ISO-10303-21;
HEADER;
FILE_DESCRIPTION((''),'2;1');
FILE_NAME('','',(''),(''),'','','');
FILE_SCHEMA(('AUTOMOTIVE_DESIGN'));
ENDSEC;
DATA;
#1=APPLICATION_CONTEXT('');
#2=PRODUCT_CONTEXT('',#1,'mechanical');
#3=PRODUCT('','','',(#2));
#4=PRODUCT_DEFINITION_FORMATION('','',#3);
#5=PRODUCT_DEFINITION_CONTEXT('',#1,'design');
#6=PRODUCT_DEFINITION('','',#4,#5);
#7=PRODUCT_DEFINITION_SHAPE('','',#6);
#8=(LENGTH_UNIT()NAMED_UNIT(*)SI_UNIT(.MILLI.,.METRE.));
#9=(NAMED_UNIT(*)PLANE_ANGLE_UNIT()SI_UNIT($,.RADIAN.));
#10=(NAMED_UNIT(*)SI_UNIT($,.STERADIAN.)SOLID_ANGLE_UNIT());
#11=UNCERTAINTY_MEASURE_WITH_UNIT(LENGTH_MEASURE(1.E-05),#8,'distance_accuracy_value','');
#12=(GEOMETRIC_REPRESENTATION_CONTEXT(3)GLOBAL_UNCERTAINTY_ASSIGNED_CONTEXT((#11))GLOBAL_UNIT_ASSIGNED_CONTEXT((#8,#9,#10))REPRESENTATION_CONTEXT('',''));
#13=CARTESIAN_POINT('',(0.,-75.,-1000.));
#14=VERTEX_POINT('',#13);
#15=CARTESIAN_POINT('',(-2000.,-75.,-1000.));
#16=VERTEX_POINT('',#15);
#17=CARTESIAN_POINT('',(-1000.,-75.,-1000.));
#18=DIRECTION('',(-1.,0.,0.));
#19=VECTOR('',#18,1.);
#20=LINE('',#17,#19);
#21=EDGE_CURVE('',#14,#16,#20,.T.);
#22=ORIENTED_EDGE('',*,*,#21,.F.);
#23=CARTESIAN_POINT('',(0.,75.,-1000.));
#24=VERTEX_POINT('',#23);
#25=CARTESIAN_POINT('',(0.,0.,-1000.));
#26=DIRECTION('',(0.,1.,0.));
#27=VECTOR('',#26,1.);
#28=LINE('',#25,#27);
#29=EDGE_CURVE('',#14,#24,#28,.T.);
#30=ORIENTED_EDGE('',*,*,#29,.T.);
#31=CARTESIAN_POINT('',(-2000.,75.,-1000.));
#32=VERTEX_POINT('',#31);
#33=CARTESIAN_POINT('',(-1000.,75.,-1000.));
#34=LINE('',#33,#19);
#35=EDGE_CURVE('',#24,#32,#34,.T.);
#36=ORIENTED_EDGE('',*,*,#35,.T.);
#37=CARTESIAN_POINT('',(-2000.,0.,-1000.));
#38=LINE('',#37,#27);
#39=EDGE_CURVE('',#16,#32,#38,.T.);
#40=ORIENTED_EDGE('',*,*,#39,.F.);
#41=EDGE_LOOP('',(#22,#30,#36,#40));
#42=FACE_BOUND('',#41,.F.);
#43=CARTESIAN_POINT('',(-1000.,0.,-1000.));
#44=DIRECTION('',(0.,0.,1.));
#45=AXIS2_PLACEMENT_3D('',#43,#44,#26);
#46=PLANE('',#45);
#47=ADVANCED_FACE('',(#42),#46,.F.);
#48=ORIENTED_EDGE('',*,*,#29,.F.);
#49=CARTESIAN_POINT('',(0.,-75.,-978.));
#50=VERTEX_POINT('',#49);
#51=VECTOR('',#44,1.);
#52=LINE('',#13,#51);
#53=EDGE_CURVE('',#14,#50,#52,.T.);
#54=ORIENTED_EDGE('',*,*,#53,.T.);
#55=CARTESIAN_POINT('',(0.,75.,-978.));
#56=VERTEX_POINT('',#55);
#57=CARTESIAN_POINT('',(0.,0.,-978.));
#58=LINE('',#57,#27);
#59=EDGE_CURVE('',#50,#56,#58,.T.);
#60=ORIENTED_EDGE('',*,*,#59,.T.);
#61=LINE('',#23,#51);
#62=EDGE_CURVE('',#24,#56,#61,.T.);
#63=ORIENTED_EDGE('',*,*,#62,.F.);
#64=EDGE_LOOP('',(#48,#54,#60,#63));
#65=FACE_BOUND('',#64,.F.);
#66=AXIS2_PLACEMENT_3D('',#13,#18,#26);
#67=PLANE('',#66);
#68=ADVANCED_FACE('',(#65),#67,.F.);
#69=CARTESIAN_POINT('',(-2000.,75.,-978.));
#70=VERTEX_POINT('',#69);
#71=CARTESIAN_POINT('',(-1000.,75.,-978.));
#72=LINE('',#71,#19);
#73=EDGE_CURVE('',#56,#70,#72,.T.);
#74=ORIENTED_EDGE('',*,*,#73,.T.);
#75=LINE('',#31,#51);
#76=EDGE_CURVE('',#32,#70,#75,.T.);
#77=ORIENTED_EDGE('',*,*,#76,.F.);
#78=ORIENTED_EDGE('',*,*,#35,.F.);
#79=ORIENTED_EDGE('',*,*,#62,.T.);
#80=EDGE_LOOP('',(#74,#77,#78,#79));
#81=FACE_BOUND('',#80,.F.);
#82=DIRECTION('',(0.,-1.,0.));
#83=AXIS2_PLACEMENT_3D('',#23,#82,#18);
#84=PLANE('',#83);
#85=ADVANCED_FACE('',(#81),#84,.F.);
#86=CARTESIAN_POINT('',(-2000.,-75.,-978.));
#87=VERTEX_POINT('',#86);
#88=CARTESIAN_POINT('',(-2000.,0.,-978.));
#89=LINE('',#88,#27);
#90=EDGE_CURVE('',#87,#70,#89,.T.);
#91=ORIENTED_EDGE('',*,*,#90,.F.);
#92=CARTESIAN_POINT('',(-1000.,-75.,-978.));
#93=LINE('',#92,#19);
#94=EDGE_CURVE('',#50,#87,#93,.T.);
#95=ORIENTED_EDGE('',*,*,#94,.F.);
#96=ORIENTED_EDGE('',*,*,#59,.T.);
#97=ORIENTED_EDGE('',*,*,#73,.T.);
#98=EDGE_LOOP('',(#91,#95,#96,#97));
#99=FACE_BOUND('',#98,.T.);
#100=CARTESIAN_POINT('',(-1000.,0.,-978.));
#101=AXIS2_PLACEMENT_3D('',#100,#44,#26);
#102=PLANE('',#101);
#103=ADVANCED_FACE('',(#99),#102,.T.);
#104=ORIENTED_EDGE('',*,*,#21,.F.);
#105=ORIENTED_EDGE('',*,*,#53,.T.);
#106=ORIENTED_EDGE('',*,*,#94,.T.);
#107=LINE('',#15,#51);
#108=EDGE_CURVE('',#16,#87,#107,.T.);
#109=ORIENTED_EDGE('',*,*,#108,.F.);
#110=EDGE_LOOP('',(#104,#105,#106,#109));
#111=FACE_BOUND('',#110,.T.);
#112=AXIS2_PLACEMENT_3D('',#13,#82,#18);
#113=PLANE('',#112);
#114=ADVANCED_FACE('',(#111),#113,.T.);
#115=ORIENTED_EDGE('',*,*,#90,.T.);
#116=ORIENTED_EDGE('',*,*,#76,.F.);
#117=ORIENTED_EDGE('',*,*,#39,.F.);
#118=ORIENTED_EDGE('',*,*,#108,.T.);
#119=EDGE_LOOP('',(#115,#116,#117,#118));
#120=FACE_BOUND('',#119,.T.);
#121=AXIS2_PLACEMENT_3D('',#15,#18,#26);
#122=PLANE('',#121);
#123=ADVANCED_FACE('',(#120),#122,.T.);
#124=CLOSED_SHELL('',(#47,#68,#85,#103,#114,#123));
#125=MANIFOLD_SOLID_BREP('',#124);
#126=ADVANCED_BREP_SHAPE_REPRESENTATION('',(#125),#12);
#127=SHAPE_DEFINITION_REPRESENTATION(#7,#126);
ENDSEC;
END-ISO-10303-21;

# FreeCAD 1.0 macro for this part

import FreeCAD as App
import Part
import Sketcher
from FreeCAD import Vector

doc = App.newDocument("Part")
body = doc.addObject("PartDesign::Body", "Body")

sketch1 = doc.addObject("Sketcher::SketchObject", "Sketch")
body.addObject(sketch1)
sketch1.AttachmentSupport = (doc.YZ_Plane, [""])
sketch1.MapMode = "FlatFace"
sketch1.addGeometry(Part.LineSegment(Vector(-75, 1000, 0), Vector(-75, -1000, 0)), False)
sketch1.addGeometry(Part.LineSegment(Vector(-75, -1000, 0), Vector(75, -1000, 0)), False)
sketch1.addGeometry(Part.LineSegment(Vector(75, -1000, 0), Vector(75, 1000, 0)), False)
sketch1.addGeometry(Part.LineSegment(Vector(75, 1000, 0), Vector(-75, 1000, 0)), False)
sketch1.addConstraint(Sketcher.Constraint("Coincident", 0, 2, 1, 1))
sketch1.addConstraint(Sketcher.Constraint("Coincident", 1, 2, 2, 1))
sketch1.addConstraint(Sketcher.Constraint("Coincident", 2, 2, 3, 1))
sketch1.addConstraint(Sketcher.Constraint("Coincident", 3, 2, 0, 1))
sketch1.addConstraint(Sketcher.Constraint("Vertical", 0))
sketch1.addConstraint(Sketcher.Constraint("Horizontal", 1))
sketch1.addConstraint(Sketcher.Constraint("Vertical", 2))
sketch1.addConstraint(Sketcher.Constraint("Horizontal", 3))
sketch1.addConstraint(Sketcher.Constraint("Symmetric", 0, 2, 2, 2, -1, 1))
sketch1.addConstraint(Sketcher.Constraint("DistanceX", 1, 1, 1, 2, 150.0))
sketch1.addConstraint(Sketcher.Constraint("DistanceY", 0, 2, 0, 1, 2000.0))
pad1 = doc.addObject("PartDesign::Pad", "Pad")
body.addObject(pad1)
pad1.Profile = sketch1
pad1.Length = 22
body2 = doc.addObject("PartDesign::Body", "Body001")
doc.recompute()

body.Placement = App.Placement(Vector(-1000, 0, -1000), App.Rotation(Vector(0, -1, 0), 90))
boolean = doc.addObject("PartDesign::Boolean", "Boolean")
body2.addObject(boolean)
boolean.Type = "Fuse"
boolean.addObjects([body])

doc.recompute()
